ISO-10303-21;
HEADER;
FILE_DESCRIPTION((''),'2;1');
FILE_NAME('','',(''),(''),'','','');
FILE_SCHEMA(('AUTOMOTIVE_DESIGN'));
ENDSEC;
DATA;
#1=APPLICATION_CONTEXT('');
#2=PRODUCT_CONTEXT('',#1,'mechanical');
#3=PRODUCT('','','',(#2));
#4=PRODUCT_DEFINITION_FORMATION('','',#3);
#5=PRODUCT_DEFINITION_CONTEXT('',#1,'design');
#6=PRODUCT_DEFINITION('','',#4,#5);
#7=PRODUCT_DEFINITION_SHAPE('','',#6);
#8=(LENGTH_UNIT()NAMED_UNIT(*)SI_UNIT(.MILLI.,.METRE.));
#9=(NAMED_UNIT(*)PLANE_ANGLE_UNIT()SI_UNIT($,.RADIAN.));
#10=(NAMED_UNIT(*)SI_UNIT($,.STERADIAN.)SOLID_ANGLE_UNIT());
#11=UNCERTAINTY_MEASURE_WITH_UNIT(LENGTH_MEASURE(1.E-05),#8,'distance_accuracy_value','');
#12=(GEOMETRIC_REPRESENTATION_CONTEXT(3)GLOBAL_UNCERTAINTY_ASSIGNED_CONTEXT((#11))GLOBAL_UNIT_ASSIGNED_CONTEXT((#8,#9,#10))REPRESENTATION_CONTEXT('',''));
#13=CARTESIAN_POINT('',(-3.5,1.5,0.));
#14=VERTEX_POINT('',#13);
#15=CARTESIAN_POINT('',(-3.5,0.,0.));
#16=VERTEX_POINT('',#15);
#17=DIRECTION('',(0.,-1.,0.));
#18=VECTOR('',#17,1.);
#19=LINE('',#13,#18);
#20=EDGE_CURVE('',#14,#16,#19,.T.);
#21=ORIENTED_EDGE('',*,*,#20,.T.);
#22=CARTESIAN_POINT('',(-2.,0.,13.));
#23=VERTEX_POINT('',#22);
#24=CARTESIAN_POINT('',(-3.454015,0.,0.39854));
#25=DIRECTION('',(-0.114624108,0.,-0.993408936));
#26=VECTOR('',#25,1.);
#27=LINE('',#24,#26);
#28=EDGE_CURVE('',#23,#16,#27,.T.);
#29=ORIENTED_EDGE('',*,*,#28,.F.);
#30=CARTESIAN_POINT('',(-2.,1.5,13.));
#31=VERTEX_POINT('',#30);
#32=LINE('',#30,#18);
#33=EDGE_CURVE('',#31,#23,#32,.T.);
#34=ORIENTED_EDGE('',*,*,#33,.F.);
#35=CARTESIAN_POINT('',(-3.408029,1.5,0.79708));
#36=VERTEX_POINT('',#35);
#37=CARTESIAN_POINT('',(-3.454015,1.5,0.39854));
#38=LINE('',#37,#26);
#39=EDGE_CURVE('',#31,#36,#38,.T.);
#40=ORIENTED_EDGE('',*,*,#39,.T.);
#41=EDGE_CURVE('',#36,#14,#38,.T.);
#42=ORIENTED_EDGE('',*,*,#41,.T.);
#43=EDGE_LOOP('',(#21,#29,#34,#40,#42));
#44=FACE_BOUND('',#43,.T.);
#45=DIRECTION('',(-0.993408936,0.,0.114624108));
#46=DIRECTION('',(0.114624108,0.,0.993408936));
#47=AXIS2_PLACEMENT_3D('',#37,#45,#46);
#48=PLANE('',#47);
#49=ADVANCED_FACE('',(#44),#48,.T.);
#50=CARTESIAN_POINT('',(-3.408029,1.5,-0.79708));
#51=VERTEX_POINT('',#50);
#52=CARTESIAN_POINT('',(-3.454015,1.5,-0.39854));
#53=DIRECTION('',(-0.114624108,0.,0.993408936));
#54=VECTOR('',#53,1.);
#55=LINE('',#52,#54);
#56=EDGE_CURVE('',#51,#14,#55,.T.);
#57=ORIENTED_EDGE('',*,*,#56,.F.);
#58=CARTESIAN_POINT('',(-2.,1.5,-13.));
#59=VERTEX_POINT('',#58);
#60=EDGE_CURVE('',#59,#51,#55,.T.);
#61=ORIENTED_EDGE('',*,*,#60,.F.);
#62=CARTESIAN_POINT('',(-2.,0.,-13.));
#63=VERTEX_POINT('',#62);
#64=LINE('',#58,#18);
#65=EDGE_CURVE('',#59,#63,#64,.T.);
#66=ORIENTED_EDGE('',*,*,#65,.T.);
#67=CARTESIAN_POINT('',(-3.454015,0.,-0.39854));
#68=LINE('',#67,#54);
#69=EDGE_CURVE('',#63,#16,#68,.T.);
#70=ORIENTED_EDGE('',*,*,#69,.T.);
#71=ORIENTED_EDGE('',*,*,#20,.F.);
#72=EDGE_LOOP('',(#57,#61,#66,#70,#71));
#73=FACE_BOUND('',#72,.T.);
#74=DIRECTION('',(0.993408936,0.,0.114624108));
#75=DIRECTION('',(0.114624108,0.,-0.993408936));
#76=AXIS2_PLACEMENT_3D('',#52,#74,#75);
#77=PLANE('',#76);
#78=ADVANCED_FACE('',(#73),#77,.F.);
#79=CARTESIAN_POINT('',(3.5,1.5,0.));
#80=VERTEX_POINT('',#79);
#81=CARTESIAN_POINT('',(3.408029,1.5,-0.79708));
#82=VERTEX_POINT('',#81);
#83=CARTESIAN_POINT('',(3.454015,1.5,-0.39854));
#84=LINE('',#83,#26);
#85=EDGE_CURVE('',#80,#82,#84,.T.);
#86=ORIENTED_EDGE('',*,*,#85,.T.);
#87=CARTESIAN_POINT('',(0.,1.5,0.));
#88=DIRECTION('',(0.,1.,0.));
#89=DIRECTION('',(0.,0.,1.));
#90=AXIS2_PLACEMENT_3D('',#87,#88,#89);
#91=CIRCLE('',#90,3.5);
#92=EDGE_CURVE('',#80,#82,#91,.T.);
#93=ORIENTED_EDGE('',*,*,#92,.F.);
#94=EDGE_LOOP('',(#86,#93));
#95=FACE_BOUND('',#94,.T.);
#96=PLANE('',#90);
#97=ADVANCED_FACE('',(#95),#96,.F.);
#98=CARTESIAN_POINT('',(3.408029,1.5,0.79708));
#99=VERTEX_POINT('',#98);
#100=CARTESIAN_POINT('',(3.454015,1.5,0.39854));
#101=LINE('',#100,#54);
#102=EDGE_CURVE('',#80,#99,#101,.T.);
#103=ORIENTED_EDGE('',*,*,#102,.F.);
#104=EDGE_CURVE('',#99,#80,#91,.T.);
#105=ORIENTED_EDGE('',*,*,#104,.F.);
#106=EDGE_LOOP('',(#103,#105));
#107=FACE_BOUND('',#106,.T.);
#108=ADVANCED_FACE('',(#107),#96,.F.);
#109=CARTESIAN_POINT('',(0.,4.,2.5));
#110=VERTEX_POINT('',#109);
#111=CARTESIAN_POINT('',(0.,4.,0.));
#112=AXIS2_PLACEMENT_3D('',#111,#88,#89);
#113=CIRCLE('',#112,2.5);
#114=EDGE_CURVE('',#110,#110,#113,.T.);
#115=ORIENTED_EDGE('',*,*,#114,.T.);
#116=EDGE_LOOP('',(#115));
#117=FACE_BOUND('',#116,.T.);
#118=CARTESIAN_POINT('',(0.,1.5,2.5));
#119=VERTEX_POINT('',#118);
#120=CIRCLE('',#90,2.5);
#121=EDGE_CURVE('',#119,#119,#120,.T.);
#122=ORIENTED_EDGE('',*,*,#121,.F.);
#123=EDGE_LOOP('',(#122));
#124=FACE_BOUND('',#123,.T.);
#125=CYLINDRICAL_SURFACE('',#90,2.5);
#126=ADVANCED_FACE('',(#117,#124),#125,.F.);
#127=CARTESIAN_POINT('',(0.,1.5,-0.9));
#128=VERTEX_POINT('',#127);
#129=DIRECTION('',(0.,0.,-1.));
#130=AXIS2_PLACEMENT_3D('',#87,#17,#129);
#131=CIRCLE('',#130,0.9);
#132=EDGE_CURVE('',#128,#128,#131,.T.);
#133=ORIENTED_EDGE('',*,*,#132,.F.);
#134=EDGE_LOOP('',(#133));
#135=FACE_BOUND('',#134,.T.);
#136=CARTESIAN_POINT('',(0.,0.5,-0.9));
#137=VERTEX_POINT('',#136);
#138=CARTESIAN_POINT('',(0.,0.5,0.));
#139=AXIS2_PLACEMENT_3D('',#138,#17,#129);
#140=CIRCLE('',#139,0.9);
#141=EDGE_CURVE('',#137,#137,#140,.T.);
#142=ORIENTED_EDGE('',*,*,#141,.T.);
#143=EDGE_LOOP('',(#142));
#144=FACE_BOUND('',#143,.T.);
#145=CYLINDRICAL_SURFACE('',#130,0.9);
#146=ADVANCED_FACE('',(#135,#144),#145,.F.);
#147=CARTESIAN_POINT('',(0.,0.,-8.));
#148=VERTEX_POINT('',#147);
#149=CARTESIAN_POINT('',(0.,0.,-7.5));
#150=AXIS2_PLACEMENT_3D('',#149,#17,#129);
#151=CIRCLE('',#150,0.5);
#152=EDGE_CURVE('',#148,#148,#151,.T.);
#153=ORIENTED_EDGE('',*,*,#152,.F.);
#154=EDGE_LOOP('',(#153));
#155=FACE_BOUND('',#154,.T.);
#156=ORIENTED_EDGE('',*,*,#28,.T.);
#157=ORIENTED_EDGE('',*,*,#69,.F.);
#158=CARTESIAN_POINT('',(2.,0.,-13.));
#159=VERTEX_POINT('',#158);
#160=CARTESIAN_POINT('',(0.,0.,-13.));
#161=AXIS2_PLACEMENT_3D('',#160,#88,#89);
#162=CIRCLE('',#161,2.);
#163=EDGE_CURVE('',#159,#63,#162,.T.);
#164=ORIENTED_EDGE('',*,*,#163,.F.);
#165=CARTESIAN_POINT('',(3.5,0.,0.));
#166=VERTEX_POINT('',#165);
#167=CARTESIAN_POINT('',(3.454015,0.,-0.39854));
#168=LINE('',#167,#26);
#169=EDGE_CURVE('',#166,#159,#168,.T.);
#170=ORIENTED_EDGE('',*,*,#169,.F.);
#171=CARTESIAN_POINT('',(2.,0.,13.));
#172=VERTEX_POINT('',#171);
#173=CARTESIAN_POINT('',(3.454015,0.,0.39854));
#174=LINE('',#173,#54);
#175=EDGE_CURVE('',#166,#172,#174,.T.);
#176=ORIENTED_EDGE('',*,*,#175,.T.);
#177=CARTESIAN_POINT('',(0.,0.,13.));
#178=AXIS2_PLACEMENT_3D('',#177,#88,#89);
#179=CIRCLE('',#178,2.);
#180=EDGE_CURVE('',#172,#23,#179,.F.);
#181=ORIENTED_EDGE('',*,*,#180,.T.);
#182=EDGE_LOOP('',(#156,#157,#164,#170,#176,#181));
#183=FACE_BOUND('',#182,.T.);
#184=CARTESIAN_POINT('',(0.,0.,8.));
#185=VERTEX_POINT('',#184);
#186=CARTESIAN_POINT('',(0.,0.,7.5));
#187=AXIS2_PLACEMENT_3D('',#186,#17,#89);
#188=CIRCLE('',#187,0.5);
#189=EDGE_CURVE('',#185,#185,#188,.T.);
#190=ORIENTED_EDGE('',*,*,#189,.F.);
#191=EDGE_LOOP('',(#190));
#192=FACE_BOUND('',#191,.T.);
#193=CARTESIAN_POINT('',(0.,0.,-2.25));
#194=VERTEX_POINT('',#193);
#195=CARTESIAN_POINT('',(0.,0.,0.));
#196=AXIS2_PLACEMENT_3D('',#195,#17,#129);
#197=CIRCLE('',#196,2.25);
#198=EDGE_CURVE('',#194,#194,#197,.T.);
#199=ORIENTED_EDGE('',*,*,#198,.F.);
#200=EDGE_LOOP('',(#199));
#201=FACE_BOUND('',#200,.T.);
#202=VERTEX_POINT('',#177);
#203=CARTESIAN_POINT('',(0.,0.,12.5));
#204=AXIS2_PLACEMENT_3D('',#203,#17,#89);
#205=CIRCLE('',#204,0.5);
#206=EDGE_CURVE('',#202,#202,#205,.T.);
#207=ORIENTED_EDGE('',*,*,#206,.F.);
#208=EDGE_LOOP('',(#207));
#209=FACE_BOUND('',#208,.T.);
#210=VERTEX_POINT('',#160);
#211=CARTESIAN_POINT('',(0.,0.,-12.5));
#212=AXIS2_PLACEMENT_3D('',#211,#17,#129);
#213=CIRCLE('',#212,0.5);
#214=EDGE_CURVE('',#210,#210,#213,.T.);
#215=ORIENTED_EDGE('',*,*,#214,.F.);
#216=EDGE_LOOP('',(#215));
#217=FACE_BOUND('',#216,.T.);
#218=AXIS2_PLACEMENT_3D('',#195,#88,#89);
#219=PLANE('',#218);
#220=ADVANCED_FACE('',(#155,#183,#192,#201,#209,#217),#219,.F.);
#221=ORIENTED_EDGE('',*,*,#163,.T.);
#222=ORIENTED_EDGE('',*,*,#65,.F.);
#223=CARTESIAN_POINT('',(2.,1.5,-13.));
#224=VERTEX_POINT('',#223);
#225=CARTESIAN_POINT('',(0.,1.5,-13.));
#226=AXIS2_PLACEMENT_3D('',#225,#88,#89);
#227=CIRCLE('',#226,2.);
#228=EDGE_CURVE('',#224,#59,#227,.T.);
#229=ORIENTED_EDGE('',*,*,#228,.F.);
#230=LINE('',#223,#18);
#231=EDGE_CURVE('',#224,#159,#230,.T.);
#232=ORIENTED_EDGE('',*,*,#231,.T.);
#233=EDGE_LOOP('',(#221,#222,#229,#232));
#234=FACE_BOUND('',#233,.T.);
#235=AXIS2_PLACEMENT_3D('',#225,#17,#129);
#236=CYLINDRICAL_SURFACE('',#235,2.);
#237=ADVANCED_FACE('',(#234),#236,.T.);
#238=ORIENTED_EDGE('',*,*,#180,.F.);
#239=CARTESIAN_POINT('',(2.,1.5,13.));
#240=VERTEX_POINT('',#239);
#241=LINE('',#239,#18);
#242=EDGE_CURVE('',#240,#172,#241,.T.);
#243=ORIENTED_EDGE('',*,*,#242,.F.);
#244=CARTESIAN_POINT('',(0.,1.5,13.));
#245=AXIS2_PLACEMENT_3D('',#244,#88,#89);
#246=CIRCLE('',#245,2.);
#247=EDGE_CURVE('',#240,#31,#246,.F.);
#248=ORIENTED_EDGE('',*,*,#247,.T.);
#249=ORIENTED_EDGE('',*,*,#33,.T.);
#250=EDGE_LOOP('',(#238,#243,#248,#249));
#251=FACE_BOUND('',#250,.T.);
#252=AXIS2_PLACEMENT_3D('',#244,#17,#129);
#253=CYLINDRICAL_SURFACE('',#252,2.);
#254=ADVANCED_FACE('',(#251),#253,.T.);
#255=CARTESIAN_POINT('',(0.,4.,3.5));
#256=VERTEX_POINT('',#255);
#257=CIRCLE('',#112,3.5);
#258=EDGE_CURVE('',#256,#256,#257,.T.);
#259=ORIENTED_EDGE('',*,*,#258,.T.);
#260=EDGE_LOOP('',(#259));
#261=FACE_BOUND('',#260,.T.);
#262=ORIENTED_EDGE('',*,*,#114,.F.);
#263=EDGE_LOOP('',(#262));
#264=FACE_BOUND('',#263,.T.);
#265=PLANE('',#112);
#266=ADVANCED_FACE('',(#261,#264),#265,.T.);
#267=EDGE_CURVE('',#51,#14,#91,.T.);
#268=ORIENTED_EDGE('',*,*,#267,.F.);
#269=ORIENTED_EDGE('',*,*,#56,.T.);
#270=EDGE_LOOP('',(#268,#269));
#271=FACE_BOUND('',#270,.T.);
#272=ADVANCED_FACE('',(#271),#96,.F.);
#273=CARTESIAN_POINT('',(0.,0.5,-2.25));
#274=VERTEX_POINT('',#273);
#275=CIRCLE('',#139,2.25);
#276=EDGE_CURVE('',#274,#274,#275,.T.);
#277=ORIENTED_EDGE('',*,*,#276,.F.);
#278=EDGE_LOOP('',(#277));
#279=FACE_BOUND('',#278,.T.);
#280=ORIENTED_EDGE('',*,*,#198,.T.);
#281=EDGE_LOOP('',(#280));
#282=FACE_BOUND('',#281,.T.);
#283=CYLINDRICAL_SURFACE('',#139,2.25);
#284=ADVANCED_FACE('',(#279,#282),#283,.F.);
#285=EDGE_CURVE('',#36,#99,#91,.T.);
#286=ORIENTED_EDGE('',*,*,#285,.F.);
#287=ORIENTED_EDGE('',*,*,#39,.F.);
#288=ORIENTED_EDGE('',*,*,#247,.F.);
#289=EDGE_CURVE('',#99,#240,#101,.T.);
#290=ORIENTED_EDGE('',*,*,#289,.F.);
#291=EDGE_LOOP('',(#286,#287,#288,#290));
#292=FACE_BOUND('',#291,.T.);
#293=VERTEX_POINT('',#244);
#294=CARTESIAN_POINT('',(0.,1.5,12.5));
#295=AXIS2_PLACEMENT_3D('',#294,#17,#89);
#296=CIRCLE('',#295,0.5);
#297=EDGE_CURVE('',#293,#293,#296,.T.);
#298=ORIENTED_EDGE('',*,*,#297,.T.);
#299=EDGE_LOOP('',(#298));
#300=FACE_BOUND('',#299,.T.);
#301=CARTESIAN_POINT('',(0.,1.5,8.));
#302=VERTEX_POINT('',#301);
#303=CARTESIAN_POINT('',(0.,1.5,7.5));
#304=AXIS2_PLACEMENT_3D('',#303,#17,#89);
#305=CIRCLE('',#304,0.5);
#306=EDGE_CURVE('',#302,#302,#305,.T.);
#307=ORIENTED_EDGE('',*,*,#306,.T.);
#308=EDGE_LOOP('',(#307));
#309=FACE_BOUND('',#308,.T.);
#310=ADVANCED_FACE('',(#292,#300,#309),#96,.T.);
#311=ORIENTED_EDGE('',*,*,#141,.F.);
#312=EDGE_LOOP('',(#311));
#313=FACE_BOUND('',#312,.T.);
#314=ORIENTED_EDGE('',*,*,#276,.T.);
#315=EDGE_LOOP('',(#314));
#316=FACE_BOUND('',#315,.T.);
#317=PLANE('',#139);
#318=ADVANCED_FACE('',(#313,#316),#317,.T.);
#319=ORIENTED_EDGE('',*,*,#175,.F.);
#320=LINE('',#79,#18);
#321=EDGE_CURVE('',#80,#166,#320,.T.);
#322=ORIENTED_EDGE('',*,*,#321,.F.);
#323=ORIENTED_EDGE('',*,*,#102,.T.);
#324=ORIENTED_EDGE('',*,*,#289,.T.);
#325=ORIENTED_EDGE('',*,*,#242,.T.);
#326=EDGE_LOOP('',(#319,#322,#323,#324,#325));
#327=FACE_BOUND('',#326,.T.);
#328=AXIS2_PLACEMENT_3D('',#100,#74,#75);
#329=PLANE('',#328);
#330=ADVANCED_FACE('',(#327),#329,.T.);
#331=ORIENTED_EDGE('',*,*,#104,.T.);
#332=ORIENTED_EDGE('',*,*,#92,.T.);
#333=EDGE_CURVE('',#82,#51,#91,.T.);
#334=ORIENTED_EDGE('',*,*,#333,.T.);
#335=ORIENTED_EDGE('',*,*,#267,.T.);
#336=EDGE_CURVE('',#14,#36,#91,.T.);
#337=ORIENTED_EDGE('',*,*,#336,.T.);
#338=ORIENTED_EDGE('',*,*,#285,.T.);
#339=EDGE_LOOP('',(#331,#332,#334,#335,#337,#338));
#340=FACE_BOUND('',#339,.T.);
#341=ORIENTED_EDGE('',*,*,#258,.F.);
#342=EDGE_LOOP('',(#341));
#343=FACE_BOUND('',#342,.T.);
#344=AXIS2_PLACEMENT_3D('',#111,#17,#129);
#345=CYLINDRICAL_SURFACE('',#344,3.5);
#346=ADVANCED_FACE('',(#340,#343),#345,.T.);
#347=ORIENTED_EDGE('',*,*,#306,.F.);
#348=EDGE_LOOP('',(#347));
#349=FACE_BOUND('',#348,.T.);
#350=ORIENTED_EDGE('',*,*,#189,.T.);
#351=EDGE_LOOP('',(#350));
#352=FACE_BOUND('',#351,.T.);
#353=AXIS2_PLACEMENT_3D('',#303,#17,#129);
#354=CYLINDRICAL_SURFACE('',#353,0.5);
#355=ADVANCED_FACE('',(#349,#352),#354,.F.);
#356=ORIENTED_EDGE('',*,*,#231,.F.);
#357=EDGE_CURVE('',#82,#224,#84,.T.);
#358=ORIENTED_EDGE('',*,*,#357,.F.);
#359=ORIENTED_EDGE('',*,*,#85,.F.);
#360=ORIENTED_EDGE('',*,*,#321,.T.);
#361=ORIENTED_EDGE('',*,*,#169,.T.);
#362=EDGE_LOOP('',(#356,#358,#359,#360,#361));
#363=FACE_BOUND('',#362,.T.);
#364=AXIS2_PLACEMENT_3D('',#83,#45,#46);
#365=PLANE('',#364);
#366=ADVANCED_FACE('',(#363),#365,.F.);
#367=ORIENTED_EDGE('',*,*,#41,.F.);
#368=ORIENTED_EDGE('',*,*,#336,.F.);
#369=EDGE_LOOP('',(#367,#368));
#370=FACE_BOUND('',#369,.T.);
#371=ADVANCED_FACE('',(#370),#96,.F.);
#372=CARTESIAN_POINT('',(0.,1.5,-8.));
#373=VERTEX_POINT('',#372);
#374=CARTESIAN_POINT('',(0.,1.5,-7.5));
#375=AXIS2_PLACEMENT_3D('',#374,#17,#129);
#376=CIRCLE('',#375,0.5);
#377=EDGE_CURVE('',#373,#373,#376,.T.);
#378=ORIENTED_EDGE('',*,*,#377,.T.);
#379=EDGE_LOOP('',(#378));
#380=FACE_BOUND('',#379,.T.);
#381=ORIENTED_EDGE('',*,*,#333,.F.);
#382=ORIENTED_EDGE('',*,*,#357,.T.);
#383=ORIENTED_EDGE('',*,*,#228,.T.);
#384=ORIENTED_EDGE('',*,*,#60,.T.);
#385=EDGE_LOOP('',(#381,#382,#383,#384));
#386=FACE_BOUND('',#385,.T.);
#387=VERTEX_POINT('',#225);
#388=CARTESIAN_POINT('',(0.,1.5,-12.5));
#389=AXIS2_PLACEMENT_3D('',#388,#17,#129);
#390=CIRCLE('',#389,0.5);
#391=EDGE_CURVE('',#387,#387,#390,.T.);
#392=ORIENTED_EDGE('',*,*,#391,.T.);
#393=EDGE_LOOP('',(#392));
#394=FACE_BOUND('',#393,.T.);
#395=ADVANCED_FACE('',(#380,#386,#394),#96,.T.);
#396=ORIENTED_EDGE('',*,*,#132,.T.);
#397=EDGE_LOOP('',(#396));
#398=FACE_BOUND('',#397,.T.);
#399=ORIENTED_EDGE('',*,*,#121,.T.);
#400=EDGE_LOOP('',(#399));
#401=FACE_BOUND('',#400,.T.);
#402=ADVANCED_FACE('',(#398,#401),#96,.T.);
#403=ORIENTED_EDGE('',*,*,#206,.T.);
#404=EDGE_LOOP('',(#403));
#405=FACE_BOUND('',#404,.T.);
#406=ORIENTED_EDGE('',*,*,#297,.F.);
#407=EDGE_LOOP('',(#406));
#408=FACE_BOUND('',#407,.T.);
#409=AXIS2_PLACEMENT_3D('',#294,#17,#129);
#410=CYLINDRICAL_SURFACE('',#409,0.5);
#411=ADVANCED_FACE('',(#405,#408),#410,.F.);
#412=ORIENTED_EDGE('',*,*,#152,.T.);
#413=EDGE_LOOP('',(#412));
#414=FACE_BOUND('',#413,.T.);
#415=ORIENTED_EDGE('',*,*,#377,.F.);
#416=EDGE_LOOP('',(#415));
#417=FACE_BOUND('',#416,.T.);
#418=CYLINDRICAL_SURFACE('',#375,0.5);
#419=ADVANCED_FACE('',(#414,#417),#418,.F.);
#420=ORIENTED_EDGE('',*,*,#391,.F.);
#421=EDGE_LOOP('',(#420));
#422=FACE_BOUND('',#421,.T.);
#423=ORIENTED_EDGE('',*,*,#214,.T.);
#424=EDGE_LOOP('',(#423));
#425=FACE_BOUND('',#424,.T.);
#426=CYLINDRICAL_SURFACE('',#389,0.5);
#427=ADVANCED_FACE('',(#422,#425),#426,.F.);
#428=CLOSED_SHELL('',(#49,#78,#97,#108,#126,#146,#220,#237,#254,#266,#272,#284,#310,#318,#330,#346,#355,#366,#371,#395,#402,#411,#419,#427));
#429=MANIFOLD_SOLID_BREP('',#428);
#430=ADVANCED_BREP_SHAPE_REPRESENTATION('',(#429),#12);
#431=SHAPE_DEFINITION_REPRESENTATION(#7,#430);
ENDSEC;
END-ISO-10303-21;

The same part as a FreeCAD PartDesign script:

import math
import FreeCAD as App
import Part
import Sketcher
Q = App.Units.Quantity

doc = App.newDocument("Part")
params = doc.addObject("Spreadsheet::Sheet", "Params")
for row, (alias, value) in enumerate([
    ("sketch1_radius", "2 mm"),
    ("pad1_length", "1.5 mm"),
    ("sketch2_diameter", "7 mm"),
    ("pad2_length", "2.5 mm"),
    ("sketch3_diameter", "5 mm"),
    ("pocket1_length", "2.5 mm"),
    ("sketch4_diameter", "4.5 mm"),
    ("pocket2_length", "0.5 mm"),
    ("sketch5_diameter", "1.8 mm"),
    ("pocket3_length", "1 mm"),
    ("sketch6_diameter", "1 mm"),
    ("pocket4_length", "1.5 mm"),
], start=1):
    params.set(f"A{row}", alias)
    params.set(f"B{row}", "=" + value)
    params.setAlias(f"B{row}", alias)

body = doc.addObject("PartDesign::Body", "Body")

# Sketch on XZ plane
sketch1 = body.newObject("Sketcher::SketchObject", "Sketch")
sketch1.AttachmentSupport = (doc.getObject("XZ_Plane"), [""])
sketch1.MapMode = "FlatFace"
sketch1.addGeometry([
    Part.ArcOfCircle(Part.Circle(App.Vector(0, -13, 0), App.Vector(0, 0, 1), 2), math.radians(180), math.radians(360)),  # 0
    Part.LineSegment(App.Vector(-2, -13, 0), App.Vector(-3.5, 0, 0)),  # 1
    Part.LineSegment(App.Vector(-3.5, 0, 0), App.Vector(-2, 13, 0)),  # 2
    Part.ArcOfCircle(Part.Circle(App.Vector(0, 13, 0), App.Vector(0, 0, 1), 2), math.radians(0), math.radians(180)),  # 3
    Part.LineSegment(App.Vector(2, 13, 0), App.Vector(3.5, 0, 0)),  # 4
    Part.LineSegment(App.Vector(3.5, 0, 0), App.Vector(2, -13, 0)),  # 5
], False)
sketch1.addConstraint([
    Sketcher.Constraint("Coincident", 0, 1, 1, 1),
    Sketcher.Constraint("Coincident", 1, 2, 2, 1),
    Sketcher.Constraint("Coincident", 2, 2, 3, 2),
    Sketcher.Constraint("Coincident", 3, 1, 4, 1),
    Sketcher.Constraint("Coincident", 4, 2, 5, 1),
    Sketcher.Constraint("Coincident", 5, 2, 0, 2),
    Sketcher.Constraint("Equal", 0, 3),
    Sketcher.Constraint("Symmetric", 0, 3, 3, 3, -1, 1),
    Sketcher.Constraint("Symmetric", 1, 2, 4, 2, -1, 1),
    Sketcher.Constraint("Symmetric", 2, 2, 3, 1, -2),
    Sketcher.Constraint("PointOnObject", 1, 2, -1),
    Sketcher.Constraint("Parallel", 1, 4),
    Sketcher.Constraint("Parallel", 2, 5),
    Sketcher.Constraint("Horizontal", 3, 3, 2, 2),
    Sketcher.Constraint("Radius", 0, Q("2 mm")),
    Sketcher.Constraint("DistanceY", 0, 3, -1, 1, Q("13 mm")),
    Sketcher.Constraint("DistanceX", 1, 2, 4, 2, Q("7 mm")),
])
sketch1.setExpression("Constraints[14]", "Params.sketch1_radius")
pad1 = body.newObject("PartDesign::Pad", "Pad")
pad1.Profile = sketch1
pad1.setExpression("Length", "Params.pad1_length")
pad1.Reversed = True

# Sketch on XZ plane
sketch2 = body.newObject("Sketcher::SketchObject", "Sketch001")
sketch2.AttachmentSupport = (doc.getObject("XZ_Plane"), [""])
sketch2.MapMode = "FlatFace"
sketch2.AttachmentOffset = App.Placement(App.Vector(0, 0, -1.5), App.Rotation())
sketch2.addGeometry(Part.Circle(App.Vector(0, 0, 0), App.Vector(0, 0, 1), 3.5), False)
sketch2.addConstraint([
    Sketcher.Constraint("Coincident", 0, 3, -1, 1),
    Sketcher.Constraint("Diameter", 0, Q("7 mm")),
])
sketch2.setExpression("Constraints[1]", "Params.sketch2_diameter")
pad2 = body.newObject("PartDesign::Pad", "Pad001")
pad2.Profile = sketch2
pad2.setExpression("Length", "Params.pad2_length")
pad2.Reversed = True

# Sketch on XZ plane
sketch3 = body.newObject("Sketcher::SketchObject", "Sketch002")
sketch3.AttachmentSupport = (doc.getObject("XZ_Plane"), [""])
sketch3.MapMode = "FlatFace"
sketch3.AttachmentOffset = App.Placement(App.Vector(0, 0, -4), App.Rotation())
sketch3.addGeometry(Part.Circle(App.Vector(0, 0, 0), App.Vector(0, 0, 1), 2.5), False)
sketch3.addConstraint([
    Sketcher.Constraint("Coincident", 0, 3, -1, 1),
    Sketcher.Constraint("Diameter", 0, Q("5 mm")),
])
sketch3.setExpression("Constraints[1]", "Params.sketch3_diameter")
pocket1 = body.newObject("PartDesign::Pocket", "Pocket")
pocket1.Profile = sketch3
pocket1.setExpression("Length", "Params.pocket1_length")
pocket1.Reversed = True

# Sketch on XZ plane
sketch4 = body.newObject("Sketcher::SketchObject", "Sketch003")
sketch4.AttachmentSupport = (doc.getObject("XZ_Plane"), [""])
sketch4.MapMode = "FlatFace"
sketch4.addGeometry(Part.Circle(App.Vector(0, 0, 0), App.Vector(0, 0, 1), 2.2), False)
sketch4.addConstraint([
    Sketcher.Constraint("Coincident", 0, 3, -1, 1),
    Sketcher.Constraint("Diameter", 0, Q("4.5 mm")),
])
sketch4.setExpression("Constraints[1]", "Params.sketch4_diameter")
pocket2 = body.newObject("PartDesign::Pocket", "Pocket001")
pocket2.Profile = sketch4
pocket2.setExpression("Length", "Params.pocket2_length")

# Sketch on XZ plane
sketch5 = body.newObject("Sketcher::SketchObject", "Sketch004")
sketch5.AttachmentSupport = (doc.getObject("XZ_Plane"), [""])
sketch5.MapMode = "FlatFace"
sketch5.AttachmentOffset = App.Placement(App.Vector(0, 0, -0.5), App.Rotation())
sketch5.addGeometry(Part.Circle(App.Vector(0, 0, 0), App.Vector(0, 0, 1), 0.9), False)
sketch5.addConstraint([
    Sketcher.Constraint("Coincident", 0, 3, -1, 1),
    Sketcher.Constraint("Diameter", 0, Q("1.8 mm")),
])
sketch5.setExpression("Constraints[1]", "Params.sketch5_diameter")
pocket3 = body.newObject("PartDesign::Pocket", "Pocket002")
pocket3.Profile = sketch5
pocket3.setExpression("Length", "Params.pocket3_length")

# Sketch on XZ plane
sketch6 = body.newObject("Sketcher::SketchObject", "Sketch005")
sketch6.AttachmentSupport = (doc.getObject("XZ_Plane"), [""])
sketch6.MapMode = "FlatFace"
sketch6.addGeometry([
    Part.Circle(App.Vector(0, -7.5, 0), App.Vector(0, 0, 1), 0.5),
    Part.Circle(App.Vector(0, -12.5, 0), App.Vector(0, 0, 1), 0.5),
    Part.Circle(App.Vector(0, 12.5, 0), App.Vector(0, 0, 1), 0.5),
    Part.Circle(App.Vector(0, 7.5, 0), App.Vector(0, 0, 1), 0.5),
], False)
sketch6.addConstraint([
    Sketcher.Constraint("Equal", 0, 1),
    Sketcher.Constraint("Equal", 1, 2),
    Sketcher.Constraint("Equal", 2, 3),
    Sketcher.Constraint("Symmetric", 1, 3, 2, 3, -1, 1),
    Sketcher.Constraint("Symmetric", 0, 3, 3, 3, -1, 1),
    Sketcher.Constraint("PointOnObject", 0, 3, -2),
    Sketcher.Constraint("PointOnObject", 1, 3, -2),
    Sketcher.Constraint("Diameter", 0, Q("1 mm")),
    Sketcher.Constraint("DistanceY", 1, 3, 0, 3, Q("5 mm")),
    Sketcher.Constraint("DistanceY", 0, 3, 2, 3, Q("20 mm")),
])
sketch6.setExpression("Constraints[7]", "Params.sketch6_diameter")
pocket4 = body.newObject("PartDesign::Pocket", "Pocket003")
pocket4.Profile = sketch6
pocket4.setExpression("Length", "Params.pocket4_length")

doc.recompute()
